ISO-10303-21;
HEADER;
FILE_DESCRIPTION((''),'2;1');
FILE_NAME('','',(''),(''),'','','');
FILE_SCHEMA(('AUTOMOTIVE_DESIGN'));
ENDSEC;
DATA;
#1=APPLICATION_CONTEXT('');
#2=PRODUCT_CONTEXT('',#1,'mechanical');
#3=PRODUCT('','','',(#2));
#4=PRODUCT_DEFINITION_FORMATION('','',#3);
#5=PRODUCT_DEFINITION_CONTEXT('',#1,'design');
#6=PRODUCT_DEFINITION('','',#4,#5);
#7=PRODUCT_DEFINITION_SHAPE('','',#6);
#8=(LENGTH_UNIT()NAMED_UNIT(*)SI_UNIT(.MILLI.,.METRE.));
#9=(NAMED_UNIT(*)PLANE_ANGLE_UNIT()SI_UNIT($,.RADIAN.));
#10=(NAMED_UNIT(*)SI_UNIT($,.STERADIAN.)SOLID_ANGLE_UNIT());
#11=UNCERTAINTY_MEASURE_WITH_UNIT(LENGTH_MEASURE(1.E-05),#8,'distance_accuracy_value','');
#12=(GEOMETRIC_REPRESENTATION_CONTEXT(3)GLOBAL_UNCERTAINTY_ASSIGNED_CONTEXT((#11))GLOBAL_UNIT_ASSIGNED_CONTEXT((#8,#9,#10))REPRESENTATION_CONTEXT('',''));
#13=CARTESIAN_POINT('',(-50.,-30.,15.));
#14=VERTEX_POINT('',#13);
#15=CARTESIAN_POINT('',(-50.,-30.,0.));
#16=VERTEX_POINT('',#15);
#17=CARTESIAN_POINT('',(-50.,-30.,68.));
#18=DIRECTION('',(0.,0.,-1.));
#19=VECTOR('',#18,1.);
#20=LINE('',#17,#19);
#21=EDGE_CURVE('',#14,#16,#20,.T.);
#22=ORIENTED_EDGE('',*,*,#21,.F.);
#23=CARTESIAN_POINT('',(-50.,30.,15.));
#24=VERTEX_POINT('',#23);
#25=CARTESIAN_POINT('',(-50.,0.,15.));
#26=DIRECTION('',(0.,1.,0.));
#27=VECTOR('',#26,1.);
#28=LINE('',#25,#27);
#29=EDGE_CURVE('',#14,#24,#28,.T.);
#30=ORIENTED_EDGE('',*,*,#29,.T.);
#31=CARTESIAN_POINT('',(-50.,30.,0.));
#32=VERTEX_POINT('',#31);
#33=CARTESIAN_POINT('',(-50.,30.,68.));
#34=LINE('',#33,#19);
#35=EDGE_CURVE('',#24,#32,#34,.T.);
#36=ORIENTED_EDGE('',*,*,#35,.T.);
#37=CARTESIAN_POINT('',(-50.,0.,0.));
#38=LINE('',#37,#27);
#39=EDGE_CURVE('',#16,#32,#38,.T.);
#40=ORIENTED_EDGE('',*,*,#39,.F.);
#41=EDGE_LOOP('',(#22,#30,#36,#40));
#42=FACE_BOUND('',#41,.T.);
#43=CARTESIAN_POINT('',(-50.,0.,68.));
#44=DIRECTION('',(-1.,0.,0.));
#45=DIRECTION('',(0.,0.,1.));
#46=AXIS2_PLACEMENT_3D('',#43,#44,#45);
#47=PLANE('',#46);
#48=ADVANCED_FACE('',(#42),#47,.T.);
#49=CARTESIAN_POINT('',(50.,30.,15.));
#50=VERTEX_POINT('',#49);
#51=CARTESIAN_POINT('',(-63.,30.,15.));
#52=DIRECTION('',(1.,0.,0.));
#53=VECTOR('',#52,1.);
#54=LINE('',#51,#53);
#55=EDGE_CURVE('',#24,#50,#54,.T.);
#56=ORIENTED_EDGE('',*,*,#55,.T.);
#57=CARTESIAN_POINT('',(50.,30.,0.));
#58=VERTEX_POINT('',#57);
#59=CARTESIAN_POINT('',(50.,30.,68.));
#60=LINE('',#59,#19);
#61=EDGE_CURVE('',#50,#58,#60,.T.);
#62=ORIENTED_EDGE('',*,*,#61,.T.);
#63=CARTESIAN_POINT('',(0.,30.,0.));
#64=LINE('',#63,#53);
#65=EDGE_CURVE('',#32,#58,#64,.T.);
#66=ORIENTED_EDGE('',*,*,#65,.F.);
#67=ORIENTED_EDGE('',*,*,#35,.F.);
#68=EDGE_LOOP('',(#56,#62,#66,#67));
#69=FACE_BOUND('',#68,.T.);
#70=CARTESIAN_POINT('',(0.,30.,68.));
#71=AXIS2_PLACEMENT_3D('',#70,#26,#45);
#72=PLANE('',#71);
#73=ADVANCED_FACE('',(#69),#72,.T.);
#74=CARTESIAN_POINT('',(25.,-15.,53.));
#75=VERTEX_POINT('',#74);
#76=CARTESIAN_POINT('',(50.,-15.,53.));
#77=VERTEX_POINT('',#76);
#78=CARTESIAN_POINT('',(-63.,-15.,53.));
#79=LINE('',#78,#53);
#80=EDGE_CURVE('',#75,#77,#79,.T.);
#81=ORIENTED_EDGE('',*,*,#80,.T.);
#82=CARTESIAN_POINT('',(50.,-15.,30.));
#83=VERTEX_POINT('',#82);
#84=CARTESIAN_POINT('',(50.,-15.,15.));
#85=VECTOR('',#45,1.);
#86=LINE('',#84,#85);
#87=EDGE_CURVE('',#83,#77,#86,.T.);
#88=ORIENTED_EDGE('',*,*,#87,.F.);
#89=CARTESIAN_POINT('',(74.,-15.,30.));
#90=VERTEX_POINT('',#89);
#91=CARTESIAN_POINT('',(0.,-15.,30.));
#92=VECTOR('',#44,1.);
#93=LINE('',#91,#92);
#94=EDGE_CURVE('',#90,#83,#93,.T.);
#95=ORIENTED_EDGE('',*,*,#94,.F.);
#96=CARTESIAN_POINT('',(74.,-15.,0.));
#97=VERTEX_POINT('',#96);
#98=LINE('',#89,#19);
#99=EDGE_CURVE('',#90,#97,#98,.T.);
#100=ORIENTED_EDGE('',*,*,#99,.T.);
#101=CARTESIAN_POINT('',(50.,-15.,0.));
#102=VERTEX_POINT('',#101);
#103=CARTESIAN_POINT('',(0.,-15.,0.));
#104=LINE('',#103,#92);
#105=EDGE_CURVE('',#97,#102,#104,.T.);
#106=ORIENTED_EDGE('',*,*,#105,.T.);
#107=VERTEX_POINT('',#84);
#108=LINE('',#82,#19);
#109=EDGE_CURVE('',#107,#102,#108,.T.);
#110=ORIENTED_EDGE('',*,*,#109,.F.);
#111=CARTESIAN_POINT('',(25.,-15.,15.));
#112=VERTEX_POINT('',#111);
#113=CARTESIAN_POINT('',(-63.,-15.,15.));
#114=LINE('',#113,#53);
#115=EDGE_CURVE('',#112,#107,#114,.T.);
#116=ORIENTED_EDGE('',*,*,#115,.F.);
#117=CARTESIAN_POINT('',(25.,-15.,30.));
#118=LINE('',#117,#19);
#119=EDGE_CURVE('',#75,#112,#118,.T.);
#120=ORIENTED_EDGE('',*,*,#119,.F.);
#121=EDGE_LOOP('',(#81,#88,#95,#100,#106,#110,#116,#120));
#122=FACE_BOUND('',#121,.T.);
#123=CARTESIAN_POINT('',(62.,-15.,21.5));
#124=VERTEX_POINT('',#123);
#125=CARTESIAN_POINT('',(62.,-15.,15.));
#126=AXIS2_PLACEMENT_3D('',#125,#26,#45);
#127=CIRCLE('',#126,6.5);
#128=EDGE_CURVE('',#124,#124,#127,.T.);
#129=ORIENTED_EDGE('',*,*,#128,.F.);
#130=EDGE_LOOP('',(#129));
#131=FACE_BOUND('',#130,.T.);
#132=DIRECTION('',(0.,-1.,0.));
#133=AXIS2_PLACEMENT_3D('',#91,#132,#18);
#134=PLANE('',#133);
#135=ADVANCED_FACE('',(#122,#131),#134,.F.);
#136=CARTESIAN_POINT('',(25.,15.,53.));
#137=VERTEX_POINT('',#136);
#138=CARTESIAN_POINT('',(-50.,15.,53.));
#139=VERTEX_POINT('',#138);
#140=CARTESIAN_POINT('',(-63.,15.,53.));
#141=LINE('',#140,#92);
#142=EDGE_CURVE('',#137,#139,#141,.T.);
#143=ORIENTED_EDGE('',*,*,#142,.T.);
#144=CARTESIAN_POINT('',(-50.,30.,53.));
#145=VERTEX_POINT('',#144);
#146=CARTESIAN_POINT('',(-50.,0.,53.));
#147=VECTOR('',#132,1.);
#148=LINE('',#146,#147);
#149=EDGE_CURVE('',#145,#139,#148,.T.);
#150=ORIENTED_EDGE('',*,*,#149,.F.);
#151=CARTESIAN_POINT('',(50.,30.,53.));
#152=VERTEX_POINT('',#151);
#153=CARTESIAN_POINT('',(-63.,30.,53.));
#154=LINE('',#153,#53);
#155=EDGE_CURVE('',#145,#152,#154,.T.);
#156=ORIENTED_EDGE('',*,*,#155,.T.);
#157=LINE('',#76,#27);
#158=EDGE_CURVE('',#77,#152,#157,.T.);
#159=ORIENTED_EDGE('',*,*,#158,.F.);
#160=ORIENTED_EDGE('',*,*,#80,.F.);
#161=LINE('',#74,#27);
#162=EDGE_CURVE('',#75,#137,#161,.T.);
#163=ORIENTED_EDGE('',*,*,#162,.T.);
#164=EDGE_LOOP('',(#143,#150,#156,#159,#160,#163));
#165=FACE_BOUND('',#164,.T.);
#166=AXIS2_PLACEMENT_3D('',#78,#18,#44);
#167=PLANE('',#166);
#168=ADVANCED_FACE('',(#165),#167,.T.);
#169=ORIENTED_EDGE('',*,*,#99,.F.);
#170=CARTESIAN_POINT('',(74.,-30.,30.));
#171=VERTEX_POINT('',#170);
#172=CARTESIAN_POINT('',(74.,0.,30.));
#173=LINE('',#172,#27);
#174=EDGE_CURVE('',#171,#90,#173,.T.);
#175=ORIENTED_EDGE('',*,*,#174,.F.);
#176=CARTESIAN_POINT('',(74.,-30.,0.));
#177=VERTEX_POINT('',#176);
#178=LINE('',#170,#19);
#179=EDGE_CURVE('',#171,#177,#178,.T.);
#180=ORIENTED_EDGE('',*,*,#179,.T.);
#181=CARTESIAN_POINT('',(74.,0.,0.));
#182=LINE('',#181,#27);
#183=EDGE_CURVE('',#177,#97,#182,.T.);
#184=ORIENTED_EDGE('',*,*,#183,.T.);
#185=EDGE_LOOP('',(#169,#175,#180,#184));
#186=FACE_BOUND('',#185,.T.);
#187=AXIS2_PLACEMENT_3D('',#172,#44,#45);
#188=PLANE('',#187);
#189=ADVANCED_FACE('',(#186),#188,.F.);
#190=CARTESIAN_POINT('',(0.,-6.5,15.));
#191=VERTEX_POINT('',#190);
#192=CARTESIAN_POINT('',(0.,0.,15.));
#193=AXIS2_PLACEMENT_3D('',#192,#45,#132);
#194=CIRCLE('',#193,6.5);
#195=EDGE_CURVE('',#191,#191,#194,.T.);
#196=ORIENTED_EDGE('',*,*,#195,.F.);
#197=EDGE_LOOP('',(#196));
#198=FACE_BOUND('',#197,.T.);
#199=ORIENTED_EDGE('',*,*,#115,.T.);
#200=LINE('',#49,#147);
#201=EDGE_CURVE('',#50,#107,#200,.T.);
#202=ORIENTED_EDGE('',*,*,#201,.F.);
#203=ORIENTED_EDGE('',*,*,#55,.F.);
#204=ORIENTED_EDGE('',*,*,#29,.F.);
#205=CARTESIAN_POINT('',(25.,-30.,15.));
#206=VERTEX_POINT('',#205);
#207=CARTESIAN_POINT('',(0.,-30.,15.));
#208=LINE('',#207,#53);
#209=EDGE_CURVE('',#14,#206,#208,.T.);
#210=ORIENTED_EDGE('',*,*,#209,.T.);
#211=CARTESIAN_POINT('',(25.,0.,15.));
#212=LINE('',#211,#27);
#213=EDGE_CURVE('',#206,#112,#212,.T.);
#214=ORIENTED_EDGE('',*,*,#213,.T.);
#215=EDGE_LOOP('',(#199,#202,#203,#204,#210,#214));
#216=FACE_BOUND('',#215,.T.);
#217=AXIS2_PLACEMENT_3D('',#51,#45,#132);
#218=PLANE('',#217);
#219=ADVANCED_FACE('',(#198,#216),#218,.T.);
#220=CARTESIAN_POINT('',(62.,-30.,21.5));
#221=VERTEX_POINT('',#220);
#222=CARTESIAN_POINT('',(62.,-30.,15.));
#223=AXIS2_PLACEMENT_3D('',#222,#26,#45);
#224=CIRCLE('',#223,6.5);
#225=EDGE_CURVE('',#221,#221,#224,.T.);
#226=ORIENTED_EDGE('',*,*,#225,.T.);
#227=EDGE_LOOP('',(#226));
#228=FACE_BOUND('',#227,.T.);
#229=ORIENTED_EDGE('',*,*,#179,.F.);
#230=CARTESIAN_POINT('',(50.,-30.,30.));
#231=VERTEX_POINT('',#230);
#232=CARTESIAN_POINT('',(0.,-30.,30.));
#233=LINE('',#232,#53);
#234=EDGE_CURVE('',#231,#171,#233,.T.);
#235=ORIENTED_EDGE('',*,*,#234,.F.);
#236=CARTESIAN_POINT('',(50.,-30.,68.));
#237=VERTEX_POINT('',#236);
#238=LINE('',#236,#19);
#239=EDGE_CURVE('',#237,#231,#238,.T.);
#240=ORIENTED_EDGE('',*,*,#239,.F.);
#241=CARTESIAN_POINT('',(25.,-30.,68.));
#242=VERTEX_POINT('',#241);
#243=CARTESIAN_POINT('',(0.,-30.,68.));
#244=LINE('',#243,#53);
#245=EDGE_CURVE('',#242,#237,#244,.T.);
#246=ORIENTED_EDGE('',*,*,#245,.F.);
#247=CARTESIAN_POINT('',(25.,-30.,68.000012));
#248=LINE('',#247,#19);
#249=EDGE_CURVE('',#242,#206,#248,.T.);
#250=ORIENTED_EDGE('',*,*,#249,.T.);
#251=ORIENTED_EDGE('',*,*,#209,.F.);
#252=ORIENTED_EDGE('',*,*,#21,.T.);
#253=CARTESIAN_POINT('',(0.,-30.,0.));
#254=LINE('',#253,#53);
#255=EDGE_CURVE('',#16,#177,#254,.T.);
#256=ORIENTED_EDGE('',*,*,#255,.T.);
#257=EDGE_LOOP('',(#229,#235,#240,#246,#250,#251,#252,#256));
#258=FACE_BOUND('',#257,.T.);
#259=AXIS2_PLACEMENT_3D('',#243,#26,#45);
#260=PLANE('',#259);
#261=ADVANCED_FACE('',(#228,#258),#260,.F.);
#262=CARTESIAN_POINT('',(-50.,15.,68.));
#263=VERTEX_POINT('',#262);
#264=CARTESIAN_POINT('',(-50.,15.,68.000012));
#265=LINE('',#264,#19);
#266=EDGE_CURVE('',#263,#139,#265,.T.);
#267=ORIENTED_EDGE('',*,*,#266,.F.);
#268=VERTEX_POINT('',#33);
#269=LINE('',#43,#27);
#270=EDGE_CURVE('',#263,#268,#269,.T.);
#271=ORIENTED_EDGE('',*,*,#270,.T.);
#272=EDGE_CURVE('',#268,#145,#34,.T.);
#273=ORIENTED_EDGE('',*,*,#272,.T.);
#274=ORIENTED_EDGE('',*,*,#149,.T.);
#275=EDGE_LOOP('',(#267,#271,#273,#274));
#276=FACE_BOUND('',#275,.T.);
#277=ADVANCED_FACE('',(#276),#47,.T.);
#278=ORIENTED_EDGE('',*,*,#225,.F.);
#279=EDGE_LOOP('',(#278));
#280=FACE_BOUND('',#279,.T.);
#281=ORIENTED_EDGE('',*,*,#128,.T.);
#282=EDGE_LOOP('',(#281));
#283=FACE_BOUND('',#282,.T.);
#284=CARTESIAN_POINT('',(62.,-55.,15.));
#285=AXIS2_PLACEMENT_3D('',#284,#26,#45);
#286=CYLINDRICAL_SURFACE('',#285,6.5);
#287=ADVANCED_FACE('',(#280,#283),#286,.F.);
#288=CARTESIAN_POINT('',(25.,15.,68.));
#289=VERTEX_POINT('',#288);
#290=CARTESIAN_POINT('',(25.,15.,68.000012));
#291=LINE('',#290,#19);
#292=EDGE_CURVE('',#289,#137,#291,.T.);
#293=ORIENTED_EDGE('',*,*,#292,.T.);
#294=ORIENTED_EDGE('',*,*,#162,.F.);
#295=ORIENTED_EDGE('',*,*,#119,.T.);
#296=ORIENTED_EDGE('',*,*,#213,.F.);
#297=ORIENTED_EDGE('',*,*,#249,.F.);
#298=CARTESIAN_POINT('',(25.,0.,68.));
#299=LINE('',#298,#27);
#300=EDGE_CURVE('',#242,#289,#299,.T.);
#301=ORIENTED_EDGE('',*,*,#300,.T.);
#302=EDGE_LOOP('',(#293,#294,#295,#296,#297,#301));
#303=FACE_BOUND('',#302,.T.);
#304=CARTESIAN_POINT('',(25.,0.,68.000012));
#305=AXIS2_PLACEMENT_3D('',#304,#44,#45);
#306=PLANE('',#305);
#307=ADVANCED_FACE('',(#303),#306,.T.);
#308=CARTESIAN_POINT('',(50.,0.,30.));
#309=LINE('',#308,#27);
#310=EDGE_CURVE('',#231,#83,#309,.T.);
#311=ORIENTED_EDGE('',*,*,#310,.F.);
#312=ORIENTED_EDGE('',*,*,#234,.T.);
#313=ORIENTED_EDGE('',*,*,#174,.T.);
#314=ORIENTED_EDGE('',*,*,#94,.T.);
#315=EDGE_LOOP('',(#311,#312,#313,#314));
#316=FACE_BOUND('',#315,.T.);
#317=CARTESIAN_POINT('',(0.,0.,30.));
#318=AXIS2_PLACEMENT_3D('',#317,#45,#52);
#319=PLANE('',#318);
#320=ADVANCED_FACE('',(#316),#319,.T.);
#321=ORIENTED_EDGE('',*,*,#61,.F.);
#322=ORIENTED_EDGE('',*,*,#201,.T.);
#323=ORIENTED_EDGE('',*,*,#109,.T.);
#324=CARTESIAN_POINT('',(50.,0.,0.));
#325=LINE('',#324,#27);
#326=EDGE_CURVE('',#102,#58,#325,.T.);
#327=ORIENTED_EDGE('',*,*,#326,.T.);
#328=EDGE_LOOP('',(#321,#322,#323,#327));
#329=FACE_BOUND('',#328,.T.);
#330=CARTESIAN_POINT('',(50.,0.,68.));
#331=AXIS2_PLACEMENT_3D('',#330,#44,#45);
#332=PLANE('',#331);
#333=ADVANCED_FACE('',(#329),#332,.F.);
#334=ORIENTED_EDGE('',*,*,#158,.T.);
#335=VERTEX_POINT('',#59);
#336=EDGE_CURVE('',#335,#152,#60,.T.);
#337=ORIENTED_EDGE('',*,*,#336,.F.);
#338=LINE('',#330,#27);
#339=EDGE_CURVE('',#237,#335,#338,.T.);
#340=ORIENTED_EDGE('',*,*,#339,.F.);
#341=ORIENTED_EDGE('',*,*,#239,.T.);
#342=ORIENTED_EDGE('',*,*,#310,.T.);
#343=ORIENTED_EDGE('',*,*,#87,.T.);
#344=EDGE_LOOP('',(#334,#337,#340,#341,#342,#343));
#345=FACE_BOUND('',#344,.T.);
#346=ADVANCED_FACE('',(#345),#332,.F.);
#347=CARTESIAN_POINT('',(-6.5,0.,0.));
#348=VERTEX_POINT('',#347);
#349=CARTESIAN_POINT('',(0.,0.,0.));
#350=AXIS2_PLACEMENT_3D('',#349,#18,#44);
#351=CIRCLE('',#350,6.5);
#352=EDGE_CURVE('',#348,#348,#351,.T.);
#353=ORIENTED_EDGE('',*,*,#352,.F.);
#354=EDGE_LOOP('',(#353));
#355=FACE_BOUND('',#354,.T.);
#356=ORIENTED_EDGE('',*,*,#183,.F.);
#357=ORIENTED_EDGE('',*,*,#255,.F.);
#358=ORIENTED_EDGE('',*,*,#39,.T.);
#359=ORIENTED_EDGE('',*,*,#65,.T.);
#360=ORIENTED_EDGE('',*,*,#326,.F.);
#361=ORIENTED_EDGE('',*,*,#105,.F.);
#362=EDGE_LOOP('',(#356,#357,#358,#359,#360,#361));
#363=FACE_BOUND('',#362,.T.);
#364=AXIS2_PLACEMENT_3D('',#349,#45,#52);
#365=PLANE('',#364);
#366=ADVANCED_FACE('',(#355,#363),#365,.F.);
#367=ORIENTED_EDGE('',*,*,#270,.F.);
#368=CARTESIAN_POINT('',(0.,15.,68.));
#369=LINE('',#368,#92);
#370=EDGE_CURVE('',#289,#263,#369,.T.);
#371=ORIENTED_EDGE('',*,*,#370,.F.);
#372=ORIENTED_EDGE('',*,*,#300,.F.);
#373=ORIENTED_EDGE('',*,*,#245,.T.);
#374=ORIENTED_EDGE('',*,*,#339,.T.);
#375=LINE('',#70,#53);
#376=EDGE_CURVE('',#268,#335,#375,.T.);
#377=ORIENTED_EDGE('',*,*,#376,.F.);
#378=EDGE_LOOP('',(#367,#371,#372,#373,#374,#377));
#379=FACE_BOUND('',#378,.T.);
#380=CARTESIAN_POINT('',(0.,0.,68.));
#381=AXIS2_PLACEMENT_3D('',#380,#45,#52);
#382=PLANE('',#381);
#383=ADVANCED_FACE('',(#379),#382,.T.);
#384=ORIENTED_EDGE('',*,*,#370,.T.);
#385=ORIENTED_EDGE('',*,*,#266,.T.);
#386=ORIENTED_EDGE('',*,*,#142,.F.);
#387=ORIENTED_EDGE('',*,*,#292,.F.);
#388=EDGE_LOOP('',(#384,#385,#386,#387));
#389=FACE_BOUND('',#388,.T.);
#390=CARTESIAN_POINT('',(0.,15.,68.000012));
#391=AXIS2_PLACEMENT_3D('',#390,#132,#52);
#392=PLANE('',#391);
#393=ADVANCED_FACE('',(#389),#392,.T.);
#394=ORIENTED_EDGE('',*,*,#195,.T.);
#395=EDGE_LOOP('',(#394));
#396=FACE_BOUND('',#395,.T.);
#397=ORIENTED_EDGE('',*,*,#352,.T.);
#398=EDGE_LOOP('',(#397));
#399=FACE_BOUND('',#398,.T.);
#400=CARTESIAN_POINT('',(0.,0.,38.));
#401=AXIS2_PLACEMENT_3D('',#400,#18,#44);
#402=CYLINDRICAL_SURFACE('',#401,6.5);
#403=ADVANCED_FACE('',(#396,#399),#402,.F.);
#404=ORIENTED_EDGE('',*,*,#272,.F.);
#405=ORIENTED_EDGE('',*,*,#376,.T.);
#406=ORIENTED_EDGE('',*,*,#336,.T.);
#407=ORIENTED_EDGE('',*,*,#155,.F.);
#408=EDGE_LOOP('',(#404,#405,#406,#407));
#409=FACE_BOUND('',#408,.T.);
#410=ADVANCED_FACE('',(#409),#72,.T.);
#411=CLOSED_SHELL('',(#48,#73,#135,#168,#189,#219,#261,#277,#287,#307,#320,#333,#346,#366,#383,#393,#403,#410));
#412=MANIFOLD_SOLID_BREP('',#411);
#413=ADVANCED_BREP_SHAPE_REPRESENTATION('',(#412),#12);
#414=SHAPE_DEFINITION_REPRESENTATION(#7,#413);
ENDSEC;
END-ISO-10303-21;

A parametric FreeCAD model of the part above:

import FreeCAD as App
import Part
import Sketcher
Q = App.Units.Quantity


def add_polygon(sketch, points):
    """Adds a closed chain of lines whose ends are joined by coincident constraints."""
    first, n = sketch.GeometryCount, len(points)
    for a, b in zip(points, points[1:] + points[:1]):
        sketch.addGeometry(Part.LineSegment(App.Vector(*a, 0), App.Vector(*b, 0)), False)
    for i in range(n):
        sketch.addConstraint(Sketcher.Constraint("Coincident", first + i, 2, first + (i + 1) % n, 1))

doc = App.newDocument("Part")
body = doc.addObject("PartDesign::Body", "Body")

# Sketch on XY plane
sketch1 = body.newObject("Sketcher::SketchObject", "Sketch")
sketch1.AttachmentSupport = (doc.getObject("XY_Plane"), [""])
sketch1.MapMode = "FlatFace"
add_polygon(sketch1, [(-50, 30), (-50, -30), (50, -30), (50, 30)])  # lines 0-3
sketch1.addConstraint(Sketcher.Constraint("Vertical", 0))
sketch1.addConstraint(Sketcher.Constraint("Horizontal", 1))
sketch1.addConstraint(Sketcher.Constraint("Vertical", 2))
sketch1.addConstraint(Sketcher.Constraint("Horizontal", 3))
sketch1.addConstraint(Sketcher.Constraint("Symmetric", 0, 2, 2, 2, -1, 1))
sketch1.addConstraint(Sketcher.Constraint("DistanceX", 1, 1, 1, 2, Q("100 mm")))
sketch1.addConstraint(Sketcher.Constraint("DistanceY", 0, 2, 0, 1, Q("60 mm")))
pad1 = body.newObject("PartDesign::Pad", "Pad")
pad1.Profile = sketch1
pad1.Length = 68

# Sketch on XY plane
sketch2 = body.newObject("Sketcher::SketchObject", "Sketch001")
sketch2.AttachmentSupport = (doc.getObject("XY_Plane"), [""])
sketch2.MapMode = "FlatFace"
add_polygon(sketch2, [(50, -15), (50, -30), (74, -30), (74, -15)])  # lines 0-3
sketch2.addConstraint(Sketcher.Constraint("Vertical", 0))
sketch2.addConstraint(Sketcher.Constraint("Horizontal", 1))
sketch2.addConstraint(Sketcher.Constraint("Vertical", 2))
sketch2.addConstraint(Sketcher.Constraint("Horizontal", 3))
sketch2.addConstraint(Sketcher.Constraint("DistanceX", 1, 1, 1, 2, Q("24 mm")))
sketch2.addConstraint(Sketcher.Constraint("DistanceY", 0, 2, 0, 1, Q("15 mm")))
sketch2.addConstraint(Sketcher.Constraint("DistanceX", -1, 1, 0, 2, Q("50 mm")))
sketch2.addConstraint(Sketcher.Constraint("DistanceY", 0, 2, -1, 1, Q("30 mm")))
pad2 = body.newObject("PartDesign::Pad", "Pad001")
pad2.Profile = sketch2
pad2.Length = 30

# Sketch on XZ plane
sketch3 = body.newObject("Sketcher::SketchObject", "Sketch002")
sketch3.AttachmentSupport = (doc.getObject("XZ_Plane"), [""])
sketch3.MapMode = "FlatFace"
sketch3.AttachmentOffset = App.Placement(App.Vector(0, 0, 15), App.Rotation())
sketch3.addGeometry(Part.Circle(App.Vector(62, 15, 0), App.Vector(0, 0, 1), 6.5), False)
sketch3.addConstraint(Sketcher.Constraint("Diameter", 0, Q("13 mm")))
sketch3.addConstraint(Sketcher.Constraint("DistanceX", -1, 1, 0, 3, Q("62 mm")))
sketch3.addConstraint(Sketcher.Constraint("DistanceY", -1, 1, 0, 3, Q("15 mm")))
pocket1 = body.newObject("PartDesign::Pocket", "Pocket")
pocket1.Profile = sketch3
pocket1.Length = 40
pocket1.Reversed = True

# Sketch on YZ plane
sketch4 = body.newObject("Sketcher::SketchObject", "Sketch003")
sketch4.AttachmentSupport = (doc.getObject("YZ_Plane"), [""])
sketch4.MapMode = "FlatFace"
sketch4.AttachmentOffset = App.Placement(App.Vector(0, 0, 50), App.Rotation())
add_polygon(sketch4, [(30, 53), (-15, 53), (-15, 15), (30, 15)])  # lines 0-3
sketch4.addConstraint(Sketcher.Constraint("Horizontal", 0))
sketch4.addConstraint(Sketcher.Constraint("Vertical", 1))
sketch4.addConstraint(Sketcher.Constraint("Horizontal", 2))
sketch4.addConstraint(Sketcher.Constraint("Vertical", 3))
sketch4.addConstraint(Sketcher.Constraint("DistanceX", 0, 2, 0, 1, Q("45 mm")))
sketch4.addConstraint(Sketcher.Constraint("DistanceY", 1, 2, 1, 1, Q("38 mm")))
sketch4.addConstraint(Sketcher.Constraint("DistanceX", 0, 2, -1, 1, Q("15 mm")))
sketch4.addConstraint(Sketcher.Constraint("DistanceY", -1, 1, 0, 2, Q("53 mm")))
pocket2 = body.newObject("PartDesign::Pocket", "Pocket001")
pocket2.Profile = sketch4
pocket2.Length = 113

# Sketch on XY plane
sketch5 = body.newObject("Sketcher::SketchObject", "Sketch004")
sketch5.AttachmentSupport = (doc.getObject("XY_Plane"), [""])
sketch5.MapMode = "FlatFace"
sketch5.AttachmentOffset = App.Placement(App.Vector(0, 0, 68), App.Rotation())
add_polygon(sketch5, [(-50, 15), (-50, -30), (25, -30), (25, 15)])  # lines 0-3
sketch5.addConstraint(Sketcher.Constraint("Vertical", 0))
sketch5.addConstraint(Sketcher.Constraint("Horizontal", 1))
sketch5.addConstraint(Sketcher.Constraint("Vertical", 2))
sketch5.addConstraint(Sketcher.Constraint("Horizontal", 3))
sketch5.addConstraint(Sketcher.Constraint("DistanceX", 1, 1, 1, 2, Q("75 mm")))
sketch5.addConstraint(Sketcher.Constraint("DistanceY", 0, 2, 0, 1, Q("45 mm")))
sketch5.addConstraint(Sketcher.Constraint("DistanceX", 0, 2, -1, 1, Q("50 mm")))
sketch5.addConstraint(Sketcher.Constraint("DistanceY", 0, 2, -1, 1, Q("30 mm")))
pocket3 = body.newObject("PartDesign::Pocket", "Pocket002")
pocket3.Profile = sketch5
pocket3.Type = "TwoLengths"
pocket3.Length = 105.880885
pocket3.Length2 = 53
pocket3.Reversed = True

# Sketch on XY plane
sketch6 = body.newObject("Sketcher::SketchObject", "Sketch005")
sketch6.AttachmentSupport = (doc.getObject("XY_Plane"), [""])
sketch6.MapMode = "FlatFace"
sketch6.addGeometry(Part.Circle(App.Vector(0, 0, 0), App.Vector(0, 0, 1), 6.5), False)
sketch6.addConstraint(Sketcher.Constraint("Coincident", 0, 3, -1, 1))
sketch6.addConstraint(Sketcher.Constraint("Diameter", 0, Q("13 mm")))
pocket4 = body.newObject("PartDesign::Pocket", "Pocket003")
pocket4.Profile = sketch6
pocket4.Length = 38
pocket4.Reversed = True

doc.recompute()
